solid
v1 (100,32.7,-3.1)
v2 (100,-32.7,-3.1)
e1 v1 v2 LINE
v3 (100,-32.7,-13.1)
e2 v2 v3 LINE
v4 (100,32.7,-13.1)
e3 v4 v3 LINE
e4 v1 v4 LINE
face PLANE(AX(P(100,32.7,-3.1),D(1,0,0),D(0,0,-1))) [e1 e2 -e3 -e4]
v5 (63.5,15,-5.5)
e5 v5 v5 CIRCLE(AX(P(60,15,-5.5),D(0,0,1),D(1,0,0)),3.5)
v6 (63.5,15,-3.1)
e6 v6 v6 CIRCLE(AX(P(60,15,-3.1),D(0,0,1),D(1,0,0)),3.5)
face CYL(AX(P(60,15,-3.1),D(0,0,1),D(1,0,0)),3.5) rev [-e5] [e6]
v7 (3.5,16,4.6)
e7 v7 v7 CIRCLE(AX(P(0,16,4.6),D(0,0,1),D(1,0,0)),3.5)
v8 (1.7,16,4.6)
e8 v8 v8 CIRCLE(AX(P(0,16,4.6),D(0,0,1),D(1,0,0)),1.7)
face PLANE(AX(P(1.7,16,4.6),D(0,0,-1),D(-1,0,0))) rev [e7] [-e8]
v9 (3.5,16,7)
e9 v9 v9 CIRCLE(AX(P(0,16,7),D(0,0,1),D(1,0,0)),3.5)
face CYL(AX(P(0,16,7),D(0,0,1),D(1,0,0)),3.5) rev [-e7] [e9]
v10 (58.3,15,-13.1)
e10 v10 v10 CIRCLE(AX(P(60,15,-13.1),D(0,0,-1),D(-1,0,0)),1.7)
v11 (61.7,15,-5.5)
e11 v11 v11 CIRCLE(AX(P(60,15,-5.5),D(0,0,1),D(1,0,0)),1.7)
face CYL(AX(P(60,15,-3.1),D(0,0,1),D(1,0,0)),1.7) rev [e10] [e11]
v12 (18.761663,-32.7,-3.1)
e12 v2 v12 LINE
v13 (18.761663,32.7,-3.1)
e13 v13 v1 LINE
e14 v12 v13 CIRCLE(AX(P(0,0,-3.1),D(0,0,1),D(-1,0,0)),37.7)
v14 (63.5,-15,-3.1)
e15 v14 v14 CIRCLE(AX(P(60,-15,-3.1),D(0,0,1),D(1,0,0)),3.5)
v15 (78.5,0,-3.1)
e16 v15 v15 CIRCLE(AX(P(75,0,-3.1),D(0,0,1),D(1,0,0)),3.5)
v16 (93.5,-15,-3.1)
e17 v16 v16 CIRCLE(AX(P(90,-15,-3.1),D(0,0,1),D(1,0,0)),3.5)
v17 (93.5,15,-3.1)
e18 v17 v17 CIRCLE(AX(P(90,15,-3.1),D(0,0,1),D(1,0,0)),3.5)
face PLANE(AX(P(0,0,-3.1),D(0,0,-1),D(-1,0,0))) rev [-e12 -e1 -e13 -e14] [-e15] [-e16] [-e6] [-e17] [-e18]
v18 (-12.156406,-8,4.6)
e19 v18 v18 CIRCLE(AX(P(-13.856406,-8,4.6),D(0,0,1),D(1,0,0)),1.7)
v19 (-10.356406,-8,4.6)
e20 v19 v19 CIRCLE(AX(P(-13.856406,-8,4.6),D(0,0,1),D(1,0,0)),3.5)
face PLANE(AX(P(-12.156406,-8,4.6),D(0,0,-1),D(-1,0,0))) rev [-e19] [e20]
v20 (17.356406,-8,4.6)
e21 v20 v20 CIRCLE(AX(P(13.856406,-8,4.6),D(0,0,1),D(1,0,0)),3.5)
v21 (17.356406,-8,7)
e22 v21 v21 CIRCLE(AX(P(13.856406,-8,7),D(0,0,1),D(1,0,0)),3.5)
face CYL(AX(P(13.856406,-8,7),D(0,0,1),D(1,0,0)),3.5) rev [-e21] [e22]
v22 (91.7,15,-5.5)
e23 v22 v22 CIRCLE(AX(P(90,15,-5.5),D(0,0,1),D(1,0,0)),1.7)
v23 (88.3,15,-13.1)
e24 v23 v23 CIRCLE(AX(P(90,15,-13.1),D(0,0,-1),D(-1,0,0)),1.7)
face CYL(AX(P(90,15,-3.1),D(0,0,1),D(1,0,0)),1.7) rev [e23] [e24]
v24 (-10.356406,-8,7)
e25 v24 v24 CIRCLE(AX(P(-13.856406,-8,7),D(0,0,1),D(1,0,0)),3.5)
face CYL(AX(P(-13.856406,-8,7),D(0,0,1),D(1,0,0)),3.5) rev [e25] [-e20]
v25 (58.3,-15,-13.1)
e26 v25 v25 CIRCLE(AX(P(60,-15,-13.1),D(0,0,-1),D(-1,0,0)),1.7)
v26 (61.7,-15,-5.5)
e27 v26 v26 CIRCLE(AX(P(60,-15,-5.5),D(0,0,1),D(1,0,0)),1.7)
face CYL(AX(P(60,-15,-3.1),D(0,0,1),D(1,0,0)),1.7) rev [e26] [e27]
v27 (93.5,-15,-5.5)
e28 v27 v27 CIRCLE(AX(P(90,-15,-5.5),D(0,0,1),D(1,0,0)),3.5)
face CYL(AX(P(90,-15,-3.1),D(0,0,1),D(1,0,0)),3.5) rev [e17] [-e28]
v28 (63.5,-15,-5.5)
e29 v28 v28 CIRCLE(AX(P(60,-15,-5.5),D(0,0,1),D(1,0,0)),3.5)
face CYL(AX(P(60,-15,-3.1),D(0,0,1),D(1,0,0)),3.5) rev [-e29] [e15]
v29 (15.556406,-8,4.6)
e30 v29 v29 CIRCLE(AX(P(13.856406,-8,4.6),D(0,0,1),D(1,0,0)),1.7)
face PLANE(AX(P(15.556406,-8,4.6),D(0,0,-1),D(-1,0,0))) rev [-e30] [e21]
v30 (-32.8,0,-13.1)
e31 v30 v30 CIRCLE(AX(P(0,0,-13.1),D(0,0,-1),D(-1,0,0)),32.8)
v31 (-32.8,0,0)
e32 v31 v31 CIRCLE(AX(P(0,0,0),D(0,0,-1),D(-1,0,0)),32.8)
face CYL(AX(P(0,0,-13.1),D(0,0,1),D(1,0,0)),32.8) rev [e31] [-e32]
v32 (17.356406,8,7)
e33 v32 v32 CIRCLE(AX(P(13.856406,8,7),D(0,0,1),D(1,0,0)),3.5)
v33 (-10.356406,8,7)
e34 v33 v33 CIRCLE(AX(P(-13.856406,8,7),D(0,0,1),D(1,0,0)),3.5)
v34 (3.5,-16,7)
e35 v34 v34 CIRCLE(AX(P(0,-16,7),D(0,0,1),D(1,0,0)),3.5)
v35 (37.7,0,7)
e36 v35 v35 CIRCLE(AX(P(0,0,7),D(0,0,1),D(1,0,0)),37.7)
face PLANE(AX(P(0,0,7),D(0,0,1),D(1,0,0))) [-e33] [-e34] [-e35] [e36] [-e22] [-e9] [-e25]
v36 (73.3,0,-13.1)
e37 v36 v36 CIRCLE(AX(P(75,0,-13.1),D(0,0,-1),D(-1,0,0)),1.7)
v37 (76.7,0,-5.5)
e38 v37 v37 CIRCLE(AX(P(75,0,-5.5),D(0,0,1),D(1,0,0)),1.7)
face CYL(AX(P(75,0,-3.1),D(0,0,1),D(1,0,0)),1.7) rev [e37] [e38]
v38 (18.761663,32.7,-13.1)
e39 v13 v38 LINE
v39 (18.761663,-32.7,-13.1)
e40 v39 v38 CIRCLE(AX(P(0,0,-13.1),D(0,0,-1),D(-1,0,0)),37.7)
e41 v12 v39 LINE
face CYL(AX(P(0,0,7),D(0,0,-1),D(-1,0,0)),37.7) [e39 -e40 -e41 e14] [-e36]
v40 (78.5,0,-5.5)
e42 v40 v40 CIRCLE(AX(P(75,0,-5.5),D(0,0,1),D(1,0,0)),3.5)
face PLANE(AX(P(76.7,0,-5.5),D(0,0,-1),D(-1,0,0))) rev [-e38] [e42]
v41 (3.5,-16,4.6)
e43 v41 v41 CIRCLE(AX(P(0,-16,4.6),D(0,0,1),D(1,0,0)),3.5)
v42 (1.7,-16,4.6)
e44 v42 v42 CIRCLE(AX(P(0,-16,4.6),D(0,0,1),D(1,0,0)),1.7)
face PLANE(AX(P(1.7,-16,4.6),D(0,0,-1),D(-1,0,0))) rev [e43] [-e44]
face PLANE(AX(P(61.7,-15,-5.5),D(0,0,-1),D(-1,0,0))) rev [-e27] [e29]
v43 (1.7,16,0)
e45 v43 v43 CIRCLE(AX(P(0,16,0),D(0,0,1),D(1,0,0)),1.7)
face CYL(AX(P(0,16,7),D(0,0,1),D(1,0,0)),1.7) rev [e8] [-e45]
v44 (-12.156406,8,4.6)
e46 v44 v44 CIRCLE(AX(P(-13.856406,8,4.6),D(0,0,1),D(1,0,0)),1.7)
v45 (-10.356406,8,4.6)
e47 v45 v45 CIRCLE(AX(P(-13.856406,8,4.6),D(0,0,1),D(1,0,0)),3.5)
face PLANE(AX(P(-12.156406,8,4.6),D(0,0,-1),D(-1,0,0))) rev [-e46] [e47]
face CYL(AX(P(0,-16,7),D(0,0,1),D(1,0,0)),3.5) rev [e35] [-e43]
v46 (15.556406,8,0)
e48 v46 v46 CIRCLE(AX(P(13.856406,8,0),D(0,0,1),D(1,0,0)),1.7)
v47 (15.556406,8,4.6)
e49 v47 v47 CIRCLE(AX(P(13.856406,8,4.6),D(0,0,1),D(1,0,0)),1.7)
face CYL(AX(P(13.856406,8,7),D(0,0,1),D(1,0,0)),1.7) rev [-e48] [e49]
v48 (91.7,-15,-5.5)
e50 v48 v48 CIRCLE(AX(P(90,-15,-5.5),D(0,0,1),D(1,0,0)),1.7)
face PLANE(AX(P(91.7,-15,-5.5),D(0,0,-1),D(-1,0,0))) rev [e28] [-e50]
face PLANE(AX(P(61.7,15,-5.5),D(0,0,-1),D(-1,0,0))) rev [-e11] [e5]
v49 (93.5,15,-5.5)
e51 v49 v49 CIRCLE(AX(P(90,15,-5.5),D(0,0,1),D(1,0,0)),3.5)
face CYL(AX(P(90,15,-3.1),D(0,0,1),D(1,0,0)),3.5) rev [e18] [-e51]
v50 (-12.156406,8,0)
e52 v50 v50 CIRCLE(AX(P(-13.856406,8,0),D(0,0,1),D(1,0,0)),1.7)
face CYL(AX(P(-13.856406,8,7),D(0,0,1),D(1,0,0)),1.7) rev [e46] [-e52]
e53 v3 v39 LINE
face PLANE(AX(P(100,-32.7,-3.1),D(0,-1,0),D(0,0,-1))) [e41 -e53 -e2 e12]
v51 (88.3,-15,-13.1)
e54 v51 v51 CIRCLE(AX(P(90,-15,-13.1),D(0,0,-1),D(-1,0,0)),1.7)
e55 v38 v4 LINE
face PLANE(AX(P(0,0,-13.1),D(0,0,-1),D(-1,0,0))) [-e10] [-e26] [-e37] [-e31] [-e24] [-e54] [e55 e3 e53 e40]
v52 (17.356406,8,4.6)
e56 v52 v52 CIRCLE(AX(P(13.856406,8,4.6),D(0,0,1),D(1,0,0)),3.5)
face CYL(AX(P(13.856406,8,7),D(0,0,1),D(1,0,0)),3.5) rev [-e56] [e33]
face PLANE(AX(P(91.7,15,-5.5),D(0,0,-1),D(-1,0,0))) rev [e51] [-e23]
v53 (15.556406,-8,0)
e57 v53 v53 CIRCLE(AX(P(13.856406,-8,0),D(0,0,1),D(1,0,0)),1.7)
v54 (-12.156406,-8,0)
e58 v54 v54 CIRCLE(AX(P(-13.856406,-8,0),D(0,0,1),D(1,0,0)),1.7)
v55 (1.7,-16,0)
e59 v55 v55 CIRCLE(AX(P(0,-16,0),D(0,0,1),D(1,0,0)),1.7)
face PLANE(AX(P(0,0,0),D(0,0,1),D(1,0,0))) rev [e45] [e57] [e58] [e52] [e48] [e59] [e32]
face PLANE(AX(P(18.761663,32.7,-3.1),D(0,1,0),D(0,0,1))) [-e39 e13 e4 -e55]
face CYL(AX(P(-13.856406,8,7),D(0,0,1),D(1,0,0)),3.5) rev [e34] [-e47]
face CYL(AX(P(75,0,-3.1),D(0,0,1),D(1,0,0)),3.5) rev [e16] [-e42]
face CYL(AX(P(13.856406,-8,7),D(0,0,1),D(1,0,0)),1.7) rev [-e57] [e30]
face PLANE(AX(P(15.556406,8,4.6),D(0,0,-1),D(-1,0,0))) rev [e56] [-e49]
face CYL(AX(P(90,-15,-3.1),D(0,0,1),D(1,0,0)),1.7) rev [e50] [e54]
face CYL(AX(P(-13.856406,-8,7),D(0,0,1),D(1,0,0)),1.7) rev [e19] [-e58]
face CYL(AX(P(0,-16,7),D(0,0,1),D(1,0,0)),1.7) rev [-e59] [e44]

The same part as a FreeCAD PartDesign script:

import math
import FreeCAD as App
import Part
import Sketcher
Q = App.Units.Quantity

doc = App.newDocument("Part")
params = doc.addObject("Spreadsheet::Sheet", "Params")
for row, (alias, value) in enumerate([
    ("sketch1_diameter", "75.4 mm"),
    ("pad1_length", "7 mm"),
    ("sketch2_diameter", "3.4 mm"),
    ("hole_diameter", "3.4 mm"),
    ("hole_cbore_diameter", "7 mm"),
    ("hole_cbore_depth", "2.4 mm"),
    ("sketch3_diameter", "75.4 mm"),
    ("sketch3_diameter2", "65.6 mm"),
    ("pad2_length", "13.1 mm"),
    ("sketch4_radius", "37.7 mm"),
    ("sketch4_height", "65.4 mm"),
    ("pad3_length", "10 mm"),
    ("sketch5_diameter", "3.4 mm"),
    ("hole2_diameter", "3.4 mm"),
    ("hole2_cbore_diameter", "7 mm"),
    ("hole2_cbore_depth", "2.4 mm"),
], start=1):
    params.set(f"A{row}", alias)
    params.set(f"B{row}", "=" + value)
    params.setAlias(f"B{row}", alias)

body = doc.addObject("PartDesign::Body", "Body")

# Sketch on XY plane
sketch1 = body.newObject("Sketcher::SketchObject", "Sketch")
sketch1.AttachmentSupport = (doc.getObject("XY_Plane"), [""])
sketch1.MapMode = "FlatFace"
sketch1.addGeometry(Part.Circle(App.Vector(0, 0, 0), App.Vector(0, 0, 1), 38), False)
sketch1.addConstraint([
    Sketcher.Constraint("Coincident", 0, 3, -1, 1),
    Sketcher.Constraint("Diameter", 0, Q("75.4 mm")),
])
sketch1.setExpression("Constraints[1]", "Params.sketch1_diameter")
pad1 = body.newObject("PartDesign::Pad", "Pad")
pad1.Profile = sketch1
pad1.setExpression("Length", "Params.pad1_length")

# Sketch on XY plane
sketch2 = body.newObject("Sketcher::SketchObject", "Sketch001")
sketch2.AttachmentSupport = (doc.getObject("XY_Plane"), [""])
sketch2.MapMode = "FlatFace"
sketch2.AttachmentOffset = App.Placement(App.Vector(0, 0, 7), App.Rotation())
sketch2.addGeometry([
    Part.Circle(App.Vector(0, 16, 0), App.Vector(0, 0, 1), 1.7),  # 0
    Part.Circle(App.Vector(13.9, 8, 0), App.Vector(0, 0, 1), 1.7),  # 1
    Part.Circle(App.Vector(13.9, -8, 0), App.Vector(0, 0, 1), 1.7),  # 2
    Part.Circle(App.Vector(0, -16, 0), App.Vector(0, 0, 1), 1.7),  # 3
    Part.Circle(App.Vector(-13.9, -8, 0), App.Vector(0, 0, 1), 1.7),  # 4
    Part.Circle(App.Vector(-13.9, 8, 0), App.Vector(0, 0, 1), 1.7),  # 5
], False)
sketch2.addConstraint([
    Sketcher.Constraint("Equal", 0, 1),
    Sketcher.Constraint("Equal", 1, 2),
    Sketcher.Constraint("Equal", 2, 3),
    Sketcher.Constraint("Equal", 3, 4),
    Sketcher.Constraint("Equal", 4, 5),
    Sketcher.Constraint("Symmetric", 0, 3, 3, 3, -1, 1),
    Sketcher.Constraint("Symmetric", 1, 3, 4, 3, -1, 1),
    Sketcher.Constraint("Symmetric", 2, 3, 5, 3, -1, 1),
    Sketcher.Constraint("Symmetric", 2, 3, 4, 3, -2),
    Sketcher.Constraint("PointOnObject", 0, 3, -2),
    Sketcher.Constraint("Diameter", 0, Q("3.4 mm")),
    Sketcher.Constraint("DistanceY", -1, 1, 0, 3, Q("16 mm")),
    Sketcher.Constraint("DistanceY", -1, 1, 1, 3, Q("8 mm")),
    Sketcher.Constraint("DistanceX", -1, 1, 1, 3, Q("13.856406 mm")),
])
sketch2.setExpression("Constraints[10]", "Params.sketch2_diameter")
doc.recompute()
hole = body.newObject("PartDesign::Hole", "Hole")
hole.Profile = sketch2
hole.ThreadType = "None"
hole.setExpression("Diameter", "Params.hole_diameter")
hole.DepthType = "ThroughAll"
hole.HoleCutType = "Counterbore"
hole.setExpression("HoleCutDiameter", "Params.hole_cbore_diameter")
hole.setExpression("HoleCutDepth", "Params.hole_cbore_depth")

# Sketch on XY plane
sketch3 = body.newObject("Sketcher::SketchObject", "Sketch002")
sketch3.AttachmentSupport = (doc.getObject("XY_Plane"), [""])
sketch3.MapMode = "FlatFace"
sketch3.AttachmentOffset = App.Placement(App.Vector(0, 0, -13.1), App.Rotation())
sketch3.addGeometry([
    Part.Circle(App.Vector(0, 0, 0), App.Vector(0, 0, 1), 38),
    Part.Circle(App.Vector(0, 0, 0), App.Vector(0, 0, 1), 33),
], False)
sketch3.addConstraint([
    Sketcher.Constraint("Coincident", 0, 3, -1, 1),
    Sketcher.Constraint("Coincident", 1, 3, -1, 1),
    Sketcher.Constraint("Diameter", 0, Q("75.4 mm")),
    Sketcher.Constraint("Diameter", 1, Q("65.6 mm")),
])
sketch3.setExpression("Constraints[2]", "Params.sketch3_diameter")
sketch3.setExpression("Constraints[3]", "Params.sketch3_diameter2")
pad2 = body.newObject("PartDesign::Pad", "Pad001")
pad2.Profile = sketch3
pad2.setExpression("Length", "Params.pad2_length")

# Sketch on XY plane
sketch4 = body.newObject("Sketcher::SketchObject", "Sketch003")
sketch4.AttachmentSupport = (doc.getObject("XY_Plane"), [""])
sketch4.MapMode = "FlatFace"
sketch4.AttachmentOffset = App.Placement(App.Vector(0, 0, -13.1), App.Rotation())
sketch4.addGeometry([
    Part.LineSegment(App.Vector(19, 33, 0), App.Vector(100, 33, 0)),
    Part.LineSegment(App.Vector(100, 33, 0), App.Vector(100, -33, 0)),
    Part.LineSegment(App.Vector(100, -33, 0), App.Vector(19, -33, 0)),
    Part.ArcOfCircle(Part.Circle(App.Vector(0, 0, 0), App.Vector(0, 0, 1), 38), math.radians(-60), math.radians(60)),
], False)
sketch4.addConstraint([
    Sketcher.Constraint("Coincident", 0, 2, 1, 1),
    Sketcher.Constraint("Coincident", 1, 2, 2, 1),
    Sketcher.Constraint("Coincident", 2, 2, 3, 1),
    Sketcher.Constraint("Coincident", 3, 2, 0, 1),
    Sketcher.Constraint("Horizontal", 0),
    Sketcher.Constraint("Vertical", 1),
    Sketcher.Constraint("Horizontal", 2),
    Sketcher.Constraint("Coincident", 3, 3, -1, 1),
    Sketcher.Constraint("Vertical", 2, 2, 3, 2),
    Sketcher.Constraint("Radius", 3, Q("37.7 mm")),
    Sketcher.Constraint("DistanceY", 1, 2, 1, 1, Q("65.4 mm")),
    Sketcher.Constraint("DistanceX", -1, 1, 0, 2, Q("100 mm")),
])
sketch4.setExpression("Constraints[9]", "Params.sketch4_radius")
sketch4.setExpression("Constraints[10]", "Params.sketch4_height")
pad3 = body.newObject("PartDesign::Pad", "Pad002")
pad3.Profile = sketch4
pad3.setExpression("Length", "Params.pad3_length")

# Sketch on XY plane
sketch5 = body.newObject("Sketcher::SketchObject", "Sketch004")
sketch5.AttachmentSupport = (doc.getObject("XY_Plane"), [""])
sketch5.MapMode = "FlatFace"
sketch5.AttachmentOffset = App.Placement(App.Vector(0, 0, -3.1), App.Rotation())
sketch5.addGeometry([
    Part.Circle(App.Vector(75, 0, 0), App.Vector(0, 0, 1), 1.7),  # 0
    Part.Circle(App.Vector(90, 15, 0), App.Vector(0, 0, 1), 1.7),  # 1
    Part.Circle(App.Vector(60, -15, 0), App.Vector(0, 0, 1), 1.7),  # 2
    Part.Circle(App.Vector(60, 15, 0), App.Vector(0, 0, 1), 1.7),  # 3
    Part.Circle(App.Vector(90, -15, 0), App.Vector(0, 0, 1), 1.7),  # 4
], False)
sketch5.addConstraint([
    Sketcher.Constraint("Equal", 0, 1),
    Sketcher.Constraint("Equal", 1, 2),
    Sketcher.Constraint("Equal", 2, 3),
    Sketcher.Constraint("Equal", 3, 4),
    Sketcher.Constraint("Symmetric", 2, 3, 3, 3, -1),
    Sketcher.Constraint("Symmetric", 1, 3, 4, 3, -1),
    Sketcher.Constraint("PointOnObject", 0, 3, -1),
    Sketcher.Constraint("Horizontal", 1, 3, 3, 3),
    Sketcher.Constraint("Diameter", 0, Q("3.4 mm")),
    Sketcher.Constraint("DistanceX", -1, 1, 0, 3, Q("75 mm")),
    Sketcher.Constraint("DistanceX", -1, 1, 1, 3, Q("90 mm")),
    Sketcher.Constraint("DistanceY", -1, 1, 1, 3, Q("15 mm")),
    Sketcher.Constraint("DistanceX", -1, 1, 2, 3, Q("60 mm")),
])
sketch5.setExpression("Constraints[8]", "Params.sketch5_diameter")
doc.recompute()
hole2 = body.newObject("PartDesign::Hole", "Hole001")
hole2.Profile = sketch5
hole2.ThreadType = "None"
hole2.setExpression("Diameter", "Params.hole2_diameter")
hole2.DepthType = "ThroughAll"
hole2.HoleCutType = "Counterbore"
hole2.setExpression("HoleCutDiameter", "Params.hole2_cbore_diameter")
hole2.setExpression("HoleCutDepth", "Params.hole2_cbore_depth")

doc.recompute()
